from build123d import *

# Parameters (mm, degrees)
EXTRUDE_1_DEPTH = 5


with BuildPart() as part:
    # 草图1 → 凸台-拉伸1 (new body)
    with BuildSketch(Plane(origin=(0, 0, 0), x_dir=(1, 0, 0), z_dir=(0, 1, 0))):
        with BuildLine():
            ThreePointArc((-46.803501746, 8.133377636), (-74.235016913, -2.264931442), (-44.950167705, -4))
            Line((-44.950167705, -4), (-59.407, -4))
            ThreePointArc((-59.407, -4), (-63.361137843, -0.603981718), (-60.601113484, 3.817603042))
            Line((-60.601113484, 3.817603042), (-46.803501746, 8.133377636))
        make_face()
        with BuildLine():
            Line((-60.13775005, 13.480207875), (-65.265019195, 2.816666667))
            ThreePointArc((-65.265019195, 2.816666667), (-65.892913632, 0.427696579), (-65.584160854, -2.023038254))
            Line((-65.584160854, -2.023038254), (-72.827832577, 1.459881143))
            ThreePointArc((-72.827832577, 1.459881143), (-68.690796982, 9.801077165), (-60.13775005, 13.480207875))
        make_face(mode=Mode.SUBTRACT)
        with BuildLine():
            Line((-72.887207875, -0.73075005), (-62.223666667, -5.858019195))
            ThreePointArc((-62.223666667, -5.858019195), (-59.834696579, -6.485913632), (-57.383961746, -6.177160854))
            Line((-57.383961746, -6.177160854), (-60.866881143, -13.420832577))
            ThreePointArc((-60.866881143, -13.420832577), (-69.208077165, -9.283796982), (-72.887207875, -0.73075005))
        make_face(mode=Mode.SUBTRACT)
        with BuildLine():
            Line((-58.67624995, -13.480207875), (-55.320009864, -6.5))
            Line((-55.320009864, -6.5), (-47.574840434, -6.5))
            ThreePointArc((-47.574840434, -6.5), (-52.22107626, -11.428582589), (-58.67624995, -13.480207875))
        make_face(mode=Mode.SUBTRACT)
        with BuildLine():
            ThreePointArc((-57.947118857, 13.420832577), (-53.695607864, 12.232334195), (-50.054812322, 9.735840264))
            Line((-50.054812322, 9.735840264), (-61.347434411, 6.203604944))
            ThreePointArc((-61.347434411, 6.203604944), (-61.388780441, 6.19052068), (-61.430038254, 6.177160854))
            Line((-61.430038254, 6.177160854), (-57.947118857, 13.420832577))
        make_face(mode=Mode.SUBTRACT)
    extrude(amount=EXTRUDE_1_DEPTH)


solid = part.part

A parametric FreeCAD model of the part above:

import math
import FreeCAD as App
import Part
import Sketcher

V = App.Vector

doc = App.newDocument("Part")
body = doc.addObject("PartDesign::Body", "Body")

# Sketch on XZ plane
sketch1 = doc.addObject("Sketcher::SketchObject", "Sketch")
body.addObject(sketch1)
sketch1.AttachmentSupport = (doc.XZ_Plane, [""])
sketch1.MapMode = "FlatFace"
sketch1.addGeometry(Part.ArcOfCircle(Part.Circle(V(-59.41, 0, 0), V(0, 0, 1), 15), math.radians(15), math.radians(327)), False)
sketch1.addGeometry(Part.LineSegment(V(-44.95, 4, 0), V(-59.41, 4, 0)), False)
sketch1.addGeometry(Part.ArcOfCircle(Part.Circle(V(-59.41, 0, 0), V(0, 0, 1), 4), math.radians(90), math.radians(253)), False)
sketch1.addGeometry(Part.LineSegment(V(-60.6, -3.82, 0), V(-46.8, -8.13, 0)), False)
sketch1.addGeometry(Part.ArcOfCircle(Part.Circle(V(-59.41, 0, 0), V(0, 0, 1), 13.5), math.radians(96), math.radians(177)), False)
sketch1.addGeometry(Part.LineSegment(V(-72.89, 0.73, 0), V(-62.22, 5.86, 0)), False)
sketch1.addGeometry(Part.ArcOfCircle(Part.Circle(V(-59.41, 0, 0), V(0, 0, 1), 6.5), math.radians(72), math.radians(116)), False)
sketch1.addGeometry(Part.LineSegment(V(-57.38, 6.18, 0), V(-60.87, 13.42, 0)), False)
sketch1.addGeometry(Part.ArcOfCircle(Part.Circle(V(-59.41, 0, 0), V(0, 0, 1), 13.5), math.radians(29), math.radians(87)), False)
sketch1.addGeometry(Part.LineSegment(V(-58.68, 13.48, 0), V(-55.32, 6.5, 0)), False)
sketch1.addGeometry(Part.LineSegment(V(-55.32, 6.5, 0), V(-47.57, 6.5, 0)), False)
sketch1.addGeometry(Part.ArcOfCircle(Part.Circle(V(-59.41, 0, 0), V(0, 0, 1), 13.5), math.radians(-174), math.radians(-93)), False)
sketch1.addGeometry(Part.LineSegment(V(-60.14, -13.48, 0), V(-65.27, -2.82, 0)), False)
sketch1.addGeometry(Part.ArcOfCircle(Part.Circle(V(-59.41, 0, 0), V(0, 0, 1), 6.5), math.radians(162), math.radians(206)), False)
sketch1.addGeometry(Part.LineSegment(V(-65.58, 2.02, 0), V(-72.83, -1.46, 0)), False)
sketch1.addGeometry(Part.LineSegment(V(-61.43, -6.18, 0), V(-57.95, -13.42, 0)), False)
sketch1.addGeometry(Part.ArcOfCircle(Part.Circle(V(-59.41, 0, 0), V(0, 0, 1), 13.5), math.radians(-84), math.radians(-46)), False)
sketch1.addGeometry(Part.LineSegment(V(-50.05, -9.74, 0), V(-61.35, -6.2, 0)), False)
sketch1.addGeometry(Part.ArcOfCircle(Part.Circle(V(-59.41, 0, 0), V(0, 0, 1), 6.5), math.radians(-108.13), math.radians(-107.37)), False)
sketch1.addConstraint(Sketcher.Constraint("Coincident", 0, 1, 1, 1))
sketch1.addConstraint(Sketcher.Constraint("Tangent", 1, 2, 2, 1))
sketch1.addConstraint(Sketcher.Constraint("Tangent", 2, 2, 3, 1))
sketch1.addConstraint(Sketcher.Constraint("Coincident", 3, 2, 0, 2))
sketch1.addConstraint(Sketcher.Constraint("Coincident", 4, 2, 5, 1))
sketch1.addConstraint(Sketcher.Constraint("Tangent", 5, 2, 6, 2))
sketch1.addConstraint(Sketcher.Constraint("Coincident", 6, 1, 7, 1))
sketch1.addConstraint(Sketcher.Constraint("Coincident", 7, 2, 4, 1))
sketch1.addConstraint(Sketcher.Constraint("Coincident", 8, 2, 9, 1))
sketch1.addConstraint(Sketcher.Constraint("Coincident", 9, 2, 10, 1))
sketch1.addConstraint(Sketcher.Constraint("Coincident", 10, 2, 8, 1))
sketch1.addConstraint(Sketcher.Constraint("Coincident", 11, 2, 12, 1))
sketch1.addConstraint(Sketcher.Constraint("Tangent", 12, 2, 13, 2))
sketch1.addConstraint(Sketcher.Constraint("Coincident", 13, 1, 14, 1))
sketch1.addConstraint(Sketcher.Constraint("Coincident", 14, 2, 11, 1))
sketch1.addConstraint(Sketcher.Constraint("Coincident", 15, 2, 16, 1))
sketch1.addConstraint(Sketcher.Constraint("Coincident", 16, 2, 17, 1))
sketch1.addConstraint(Sketcher.Constraint("Tangent", 17, 2, 18, 2))
sketch1.addConstraint(Sketcher.Constraint("Coincident", 18, 1, 15, 1))
sketch1.addConstraint(Sketcher.Constraint("Horizontal", 1))
sketch1.addConstraint(Sketcher.Constraint("Horizontal", 10))
sketch1.addConstraint(Sketcher.Constraint("Coincident", 2, 3, 0, 3))
sketch1.addConstraint(Sketcher.Constraint("Coincident", 4, 3, 0, 3))
sketch1.addConstraint(Sketcher.Constraint("Coincident", 6, 3, 0, 3))
sketch1.addConstraint(Sketcher.Constraint("Coincident", 8, 3, 0, 3))
sketch1.addConstraint(Sketcher.Constraint("Coincident", 11, 3, 0, 3))
sketch1.addConstraint(Sketcher.Constraint("Coincident", 13, 3, 0, 3))
sketch1.addConstraint(Sketcher.Constraint("Coincident", 16, 3, 0, 3))
sketch1.addConstraint(Sketcher.Constraint("Equal", 4, 8))
sketch1.addConstraint(Sketcher.Constraint("Equal", 8, 11))
sketch1.addConstraint(Sketcher.Constraint("Equal", 6, 13))
sketch1.addConstraint(Sketcher.Constraint("Equal", 11, 16))
sketch1.addConstraint(Sketcher.Constraint("PointOnObject", 0, 3, -1))
sketch1.addConstraint(Sketcher.Constraint("Perpendicular", 5, 7))
sketch1.addConstraint(Sketcher.Constraint("Parallel", 7, 9))
sketch1.addConstraint(Sketcher.Constraint("Parallel", 9, 12))
sketch1.addConstraint(Sketcher.Constraint("Perpendicular", 12, 14))
sketch1.addConstraint(Sketcher.Constraint("Perpendicular", 14, 15))
sketch1.addConstraint(Sketcher.Constraint("Parallel", 3, 17))
sketch1.addConstraint(Sketcher.Constraint("Equal", 7, 14))
sketch1.addConstraint(Sketcher.Constraint("Equal", 14, 15))
sketch1.addConstraint(Sketcher.Constraint("Equal", 12, 17))
sketch1.addConstraint(Sketcher.Constraint("Radius", 0, 15.0))
sketch1.addConstraint(Sketcher.Constraint("Radius", 2, 4.0))
sketch1.addConstraint(Sketcher.Constraint("Radius", 4, 13.5))
sketch1.addConstraint(Sketcher.Constraint("Radius", 6, 6.5))
sketch1.addConstraint(Sketcher.Constraint("DistanceY", -1, 1, 9, 2, 6.5))
sketch1.addConstraint(Sketcher.Constraint("DistanceX", 0, 3, -1, 1, 59.407))
sketch1.addConstraint(Sketcher.Constraint("Radius", 18, 6.499976))
sketch1.addConstraint(Sketcher.Constraint("DistanceY", 17, 2, 2, 2, 2.386002))
sketch1.addConstraint(Sketcher.Constraint("DistanceX", 10, 1, 10, 2, 7.745169))
sketch1.addConstraint(Sketcher.Constraint("DistanceX", 3, 2, -1, 1, 46.803502))
sketch1.addConstraint(Sketcher.Constraint("DistanceX", 4, 2, 18, 3, 13.480201))
sketch1.addConstraint(Sketcher.Constraint("DistanceY", 14, 2, 5, 2, 7.3179))
pad1 = doc.addObject("PartDesign::Pad", "Pad")
body.addObject(pad1)
pad1.Profile = sketch1
pad1.Length = 5
pad1.Reversed = True

doc.recompute()
